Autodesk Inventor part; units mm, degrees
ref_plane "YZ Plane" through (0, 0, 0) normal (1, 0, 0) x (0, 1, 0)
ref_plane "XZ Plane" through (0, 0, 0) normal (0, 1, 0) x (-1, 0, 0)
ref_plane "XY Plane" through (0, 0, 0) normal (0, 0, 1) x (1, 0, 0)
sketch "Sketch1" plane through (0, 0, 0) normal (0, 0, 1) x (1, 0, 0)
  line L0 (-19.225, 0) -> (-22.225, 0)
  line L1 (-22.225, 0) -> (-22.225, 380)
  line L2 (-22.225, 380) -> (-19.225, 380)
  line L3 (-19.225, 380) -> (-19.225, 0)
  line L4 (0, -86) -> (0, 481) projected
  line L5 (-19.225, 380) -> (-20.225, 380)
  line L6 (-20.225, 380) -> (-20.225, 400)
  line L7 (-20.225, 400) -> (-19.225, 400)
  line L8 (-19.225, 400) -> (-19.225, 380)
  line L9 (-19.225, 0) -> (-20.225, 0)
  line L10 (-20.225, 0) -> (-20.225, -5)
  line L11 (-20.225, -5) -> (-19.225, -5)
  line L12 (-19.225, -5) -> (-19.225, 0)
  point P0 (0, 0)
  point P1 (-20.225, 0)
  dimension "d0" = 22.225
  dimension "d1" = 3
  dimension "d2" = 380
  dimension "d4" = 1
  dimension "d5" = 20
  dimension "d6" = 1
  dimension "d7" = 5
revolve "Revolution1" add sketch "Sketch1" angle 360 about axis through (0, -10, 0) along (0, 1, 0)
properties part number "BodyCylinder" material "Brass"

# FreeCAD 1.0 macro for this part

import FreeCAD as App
import Part
import Sketcher
from FreeCAD import Vector


def add_polygon(sketch, points):
    """Adds a closed chain of lines whose ends are joined by coincident constraints."""
    first, n = sketch.GeometryCount, len(points)
    for a, b in zip(points, points[1:] + points[:1]):
        sketch.addGeometry(Part.LineSegment(App.Vector(*a, 0), App.Vector(*b, 0)), False)
    for i in range(n):
        sketch.addConstraint(Sketcher.Constraint("Coincident", first + i, 2, first + (i + 1) % n, 1))

doc = App.newDocument("Part")
body = doc.addObject("PartDesign::Body", "Body")

# Sketch on XY plane
sketch1 = doc.addObject("Sketcher::SketchObject", "Sketch")
body.addObject(sketch1)
sketch1.AttachmentSupport = (doc.XY_Plane, [""])
sketch1.MapMode = "FlatFace"
add_polygon(sketch1, [(-19.2, -5), (-19.2, 400), (-20.2, 400), (-20.2, 380), (-22.2, 380), (-22.2, 0), (-20.2, 0), (-20.2, -5)])  # lines 0-7
sketch1.addConstraint(Sketcher.Constraint("Vertical", 0))
sketch1.addConstraint(Sketcher.Constraint("Horizontal", 1))
sketch1.addConstraint(Sketcher.Constraint("Vertical", 2))
sketch1.addConstraint(Sketcher.Constraint("Horizontal", 3))
sketch1.addConstraint(Sketcher.Constraint("Vertical", 4))
sketch1.addConstraint(Sketcher.Constraint("Horizontal", 5))
sketch1.addConstraint(Sketcher.Constraint("Vertical", 6))
sketch1.addConstraint(Sketcher.Constraint("Horizontal", 7))
sketch1.addConstraint(Sketcher.Constraint("PointOnObject", 4, 2, -1))
sketch1.addConstraint(Sketcher.Constraint("Vertical", 2, 2, 5, 2))
sketch1.addConstraint(Sketcher.Constraint("DistanceX", 1, 2, 1, 1, 1.0))
sketch1.addConstraint(Sketcher.Constraint("DistanceY", 2, 2, 2, 1, 20.0))
sketch1.addConstraint(Sketcher.Constraint("DistanceY", 4, 2, 4, 1, 380.0))
sketch1.addConstraint(Sketcher.Constraint("DistanceY", 6, 2, 6, 1, 5.0))
sketch1.addConstraint(Sketcher.Constraint("DistanceX", 3, 2, 0, 2, 3.0))
sketch1.addConstraint(Sketcher.Constraint("DistanceX", 3, 2, -1, 1, 22.225))
revolution = doc.addObject("PartDesign::Revolution", "Revolution")
body.addObject(revolution)
revolution.Profile = sketch1
revolution.ReferenceAxis = (sketch1, ["V_Axis"])
revolution.Angle = 360

doc.recompute()
